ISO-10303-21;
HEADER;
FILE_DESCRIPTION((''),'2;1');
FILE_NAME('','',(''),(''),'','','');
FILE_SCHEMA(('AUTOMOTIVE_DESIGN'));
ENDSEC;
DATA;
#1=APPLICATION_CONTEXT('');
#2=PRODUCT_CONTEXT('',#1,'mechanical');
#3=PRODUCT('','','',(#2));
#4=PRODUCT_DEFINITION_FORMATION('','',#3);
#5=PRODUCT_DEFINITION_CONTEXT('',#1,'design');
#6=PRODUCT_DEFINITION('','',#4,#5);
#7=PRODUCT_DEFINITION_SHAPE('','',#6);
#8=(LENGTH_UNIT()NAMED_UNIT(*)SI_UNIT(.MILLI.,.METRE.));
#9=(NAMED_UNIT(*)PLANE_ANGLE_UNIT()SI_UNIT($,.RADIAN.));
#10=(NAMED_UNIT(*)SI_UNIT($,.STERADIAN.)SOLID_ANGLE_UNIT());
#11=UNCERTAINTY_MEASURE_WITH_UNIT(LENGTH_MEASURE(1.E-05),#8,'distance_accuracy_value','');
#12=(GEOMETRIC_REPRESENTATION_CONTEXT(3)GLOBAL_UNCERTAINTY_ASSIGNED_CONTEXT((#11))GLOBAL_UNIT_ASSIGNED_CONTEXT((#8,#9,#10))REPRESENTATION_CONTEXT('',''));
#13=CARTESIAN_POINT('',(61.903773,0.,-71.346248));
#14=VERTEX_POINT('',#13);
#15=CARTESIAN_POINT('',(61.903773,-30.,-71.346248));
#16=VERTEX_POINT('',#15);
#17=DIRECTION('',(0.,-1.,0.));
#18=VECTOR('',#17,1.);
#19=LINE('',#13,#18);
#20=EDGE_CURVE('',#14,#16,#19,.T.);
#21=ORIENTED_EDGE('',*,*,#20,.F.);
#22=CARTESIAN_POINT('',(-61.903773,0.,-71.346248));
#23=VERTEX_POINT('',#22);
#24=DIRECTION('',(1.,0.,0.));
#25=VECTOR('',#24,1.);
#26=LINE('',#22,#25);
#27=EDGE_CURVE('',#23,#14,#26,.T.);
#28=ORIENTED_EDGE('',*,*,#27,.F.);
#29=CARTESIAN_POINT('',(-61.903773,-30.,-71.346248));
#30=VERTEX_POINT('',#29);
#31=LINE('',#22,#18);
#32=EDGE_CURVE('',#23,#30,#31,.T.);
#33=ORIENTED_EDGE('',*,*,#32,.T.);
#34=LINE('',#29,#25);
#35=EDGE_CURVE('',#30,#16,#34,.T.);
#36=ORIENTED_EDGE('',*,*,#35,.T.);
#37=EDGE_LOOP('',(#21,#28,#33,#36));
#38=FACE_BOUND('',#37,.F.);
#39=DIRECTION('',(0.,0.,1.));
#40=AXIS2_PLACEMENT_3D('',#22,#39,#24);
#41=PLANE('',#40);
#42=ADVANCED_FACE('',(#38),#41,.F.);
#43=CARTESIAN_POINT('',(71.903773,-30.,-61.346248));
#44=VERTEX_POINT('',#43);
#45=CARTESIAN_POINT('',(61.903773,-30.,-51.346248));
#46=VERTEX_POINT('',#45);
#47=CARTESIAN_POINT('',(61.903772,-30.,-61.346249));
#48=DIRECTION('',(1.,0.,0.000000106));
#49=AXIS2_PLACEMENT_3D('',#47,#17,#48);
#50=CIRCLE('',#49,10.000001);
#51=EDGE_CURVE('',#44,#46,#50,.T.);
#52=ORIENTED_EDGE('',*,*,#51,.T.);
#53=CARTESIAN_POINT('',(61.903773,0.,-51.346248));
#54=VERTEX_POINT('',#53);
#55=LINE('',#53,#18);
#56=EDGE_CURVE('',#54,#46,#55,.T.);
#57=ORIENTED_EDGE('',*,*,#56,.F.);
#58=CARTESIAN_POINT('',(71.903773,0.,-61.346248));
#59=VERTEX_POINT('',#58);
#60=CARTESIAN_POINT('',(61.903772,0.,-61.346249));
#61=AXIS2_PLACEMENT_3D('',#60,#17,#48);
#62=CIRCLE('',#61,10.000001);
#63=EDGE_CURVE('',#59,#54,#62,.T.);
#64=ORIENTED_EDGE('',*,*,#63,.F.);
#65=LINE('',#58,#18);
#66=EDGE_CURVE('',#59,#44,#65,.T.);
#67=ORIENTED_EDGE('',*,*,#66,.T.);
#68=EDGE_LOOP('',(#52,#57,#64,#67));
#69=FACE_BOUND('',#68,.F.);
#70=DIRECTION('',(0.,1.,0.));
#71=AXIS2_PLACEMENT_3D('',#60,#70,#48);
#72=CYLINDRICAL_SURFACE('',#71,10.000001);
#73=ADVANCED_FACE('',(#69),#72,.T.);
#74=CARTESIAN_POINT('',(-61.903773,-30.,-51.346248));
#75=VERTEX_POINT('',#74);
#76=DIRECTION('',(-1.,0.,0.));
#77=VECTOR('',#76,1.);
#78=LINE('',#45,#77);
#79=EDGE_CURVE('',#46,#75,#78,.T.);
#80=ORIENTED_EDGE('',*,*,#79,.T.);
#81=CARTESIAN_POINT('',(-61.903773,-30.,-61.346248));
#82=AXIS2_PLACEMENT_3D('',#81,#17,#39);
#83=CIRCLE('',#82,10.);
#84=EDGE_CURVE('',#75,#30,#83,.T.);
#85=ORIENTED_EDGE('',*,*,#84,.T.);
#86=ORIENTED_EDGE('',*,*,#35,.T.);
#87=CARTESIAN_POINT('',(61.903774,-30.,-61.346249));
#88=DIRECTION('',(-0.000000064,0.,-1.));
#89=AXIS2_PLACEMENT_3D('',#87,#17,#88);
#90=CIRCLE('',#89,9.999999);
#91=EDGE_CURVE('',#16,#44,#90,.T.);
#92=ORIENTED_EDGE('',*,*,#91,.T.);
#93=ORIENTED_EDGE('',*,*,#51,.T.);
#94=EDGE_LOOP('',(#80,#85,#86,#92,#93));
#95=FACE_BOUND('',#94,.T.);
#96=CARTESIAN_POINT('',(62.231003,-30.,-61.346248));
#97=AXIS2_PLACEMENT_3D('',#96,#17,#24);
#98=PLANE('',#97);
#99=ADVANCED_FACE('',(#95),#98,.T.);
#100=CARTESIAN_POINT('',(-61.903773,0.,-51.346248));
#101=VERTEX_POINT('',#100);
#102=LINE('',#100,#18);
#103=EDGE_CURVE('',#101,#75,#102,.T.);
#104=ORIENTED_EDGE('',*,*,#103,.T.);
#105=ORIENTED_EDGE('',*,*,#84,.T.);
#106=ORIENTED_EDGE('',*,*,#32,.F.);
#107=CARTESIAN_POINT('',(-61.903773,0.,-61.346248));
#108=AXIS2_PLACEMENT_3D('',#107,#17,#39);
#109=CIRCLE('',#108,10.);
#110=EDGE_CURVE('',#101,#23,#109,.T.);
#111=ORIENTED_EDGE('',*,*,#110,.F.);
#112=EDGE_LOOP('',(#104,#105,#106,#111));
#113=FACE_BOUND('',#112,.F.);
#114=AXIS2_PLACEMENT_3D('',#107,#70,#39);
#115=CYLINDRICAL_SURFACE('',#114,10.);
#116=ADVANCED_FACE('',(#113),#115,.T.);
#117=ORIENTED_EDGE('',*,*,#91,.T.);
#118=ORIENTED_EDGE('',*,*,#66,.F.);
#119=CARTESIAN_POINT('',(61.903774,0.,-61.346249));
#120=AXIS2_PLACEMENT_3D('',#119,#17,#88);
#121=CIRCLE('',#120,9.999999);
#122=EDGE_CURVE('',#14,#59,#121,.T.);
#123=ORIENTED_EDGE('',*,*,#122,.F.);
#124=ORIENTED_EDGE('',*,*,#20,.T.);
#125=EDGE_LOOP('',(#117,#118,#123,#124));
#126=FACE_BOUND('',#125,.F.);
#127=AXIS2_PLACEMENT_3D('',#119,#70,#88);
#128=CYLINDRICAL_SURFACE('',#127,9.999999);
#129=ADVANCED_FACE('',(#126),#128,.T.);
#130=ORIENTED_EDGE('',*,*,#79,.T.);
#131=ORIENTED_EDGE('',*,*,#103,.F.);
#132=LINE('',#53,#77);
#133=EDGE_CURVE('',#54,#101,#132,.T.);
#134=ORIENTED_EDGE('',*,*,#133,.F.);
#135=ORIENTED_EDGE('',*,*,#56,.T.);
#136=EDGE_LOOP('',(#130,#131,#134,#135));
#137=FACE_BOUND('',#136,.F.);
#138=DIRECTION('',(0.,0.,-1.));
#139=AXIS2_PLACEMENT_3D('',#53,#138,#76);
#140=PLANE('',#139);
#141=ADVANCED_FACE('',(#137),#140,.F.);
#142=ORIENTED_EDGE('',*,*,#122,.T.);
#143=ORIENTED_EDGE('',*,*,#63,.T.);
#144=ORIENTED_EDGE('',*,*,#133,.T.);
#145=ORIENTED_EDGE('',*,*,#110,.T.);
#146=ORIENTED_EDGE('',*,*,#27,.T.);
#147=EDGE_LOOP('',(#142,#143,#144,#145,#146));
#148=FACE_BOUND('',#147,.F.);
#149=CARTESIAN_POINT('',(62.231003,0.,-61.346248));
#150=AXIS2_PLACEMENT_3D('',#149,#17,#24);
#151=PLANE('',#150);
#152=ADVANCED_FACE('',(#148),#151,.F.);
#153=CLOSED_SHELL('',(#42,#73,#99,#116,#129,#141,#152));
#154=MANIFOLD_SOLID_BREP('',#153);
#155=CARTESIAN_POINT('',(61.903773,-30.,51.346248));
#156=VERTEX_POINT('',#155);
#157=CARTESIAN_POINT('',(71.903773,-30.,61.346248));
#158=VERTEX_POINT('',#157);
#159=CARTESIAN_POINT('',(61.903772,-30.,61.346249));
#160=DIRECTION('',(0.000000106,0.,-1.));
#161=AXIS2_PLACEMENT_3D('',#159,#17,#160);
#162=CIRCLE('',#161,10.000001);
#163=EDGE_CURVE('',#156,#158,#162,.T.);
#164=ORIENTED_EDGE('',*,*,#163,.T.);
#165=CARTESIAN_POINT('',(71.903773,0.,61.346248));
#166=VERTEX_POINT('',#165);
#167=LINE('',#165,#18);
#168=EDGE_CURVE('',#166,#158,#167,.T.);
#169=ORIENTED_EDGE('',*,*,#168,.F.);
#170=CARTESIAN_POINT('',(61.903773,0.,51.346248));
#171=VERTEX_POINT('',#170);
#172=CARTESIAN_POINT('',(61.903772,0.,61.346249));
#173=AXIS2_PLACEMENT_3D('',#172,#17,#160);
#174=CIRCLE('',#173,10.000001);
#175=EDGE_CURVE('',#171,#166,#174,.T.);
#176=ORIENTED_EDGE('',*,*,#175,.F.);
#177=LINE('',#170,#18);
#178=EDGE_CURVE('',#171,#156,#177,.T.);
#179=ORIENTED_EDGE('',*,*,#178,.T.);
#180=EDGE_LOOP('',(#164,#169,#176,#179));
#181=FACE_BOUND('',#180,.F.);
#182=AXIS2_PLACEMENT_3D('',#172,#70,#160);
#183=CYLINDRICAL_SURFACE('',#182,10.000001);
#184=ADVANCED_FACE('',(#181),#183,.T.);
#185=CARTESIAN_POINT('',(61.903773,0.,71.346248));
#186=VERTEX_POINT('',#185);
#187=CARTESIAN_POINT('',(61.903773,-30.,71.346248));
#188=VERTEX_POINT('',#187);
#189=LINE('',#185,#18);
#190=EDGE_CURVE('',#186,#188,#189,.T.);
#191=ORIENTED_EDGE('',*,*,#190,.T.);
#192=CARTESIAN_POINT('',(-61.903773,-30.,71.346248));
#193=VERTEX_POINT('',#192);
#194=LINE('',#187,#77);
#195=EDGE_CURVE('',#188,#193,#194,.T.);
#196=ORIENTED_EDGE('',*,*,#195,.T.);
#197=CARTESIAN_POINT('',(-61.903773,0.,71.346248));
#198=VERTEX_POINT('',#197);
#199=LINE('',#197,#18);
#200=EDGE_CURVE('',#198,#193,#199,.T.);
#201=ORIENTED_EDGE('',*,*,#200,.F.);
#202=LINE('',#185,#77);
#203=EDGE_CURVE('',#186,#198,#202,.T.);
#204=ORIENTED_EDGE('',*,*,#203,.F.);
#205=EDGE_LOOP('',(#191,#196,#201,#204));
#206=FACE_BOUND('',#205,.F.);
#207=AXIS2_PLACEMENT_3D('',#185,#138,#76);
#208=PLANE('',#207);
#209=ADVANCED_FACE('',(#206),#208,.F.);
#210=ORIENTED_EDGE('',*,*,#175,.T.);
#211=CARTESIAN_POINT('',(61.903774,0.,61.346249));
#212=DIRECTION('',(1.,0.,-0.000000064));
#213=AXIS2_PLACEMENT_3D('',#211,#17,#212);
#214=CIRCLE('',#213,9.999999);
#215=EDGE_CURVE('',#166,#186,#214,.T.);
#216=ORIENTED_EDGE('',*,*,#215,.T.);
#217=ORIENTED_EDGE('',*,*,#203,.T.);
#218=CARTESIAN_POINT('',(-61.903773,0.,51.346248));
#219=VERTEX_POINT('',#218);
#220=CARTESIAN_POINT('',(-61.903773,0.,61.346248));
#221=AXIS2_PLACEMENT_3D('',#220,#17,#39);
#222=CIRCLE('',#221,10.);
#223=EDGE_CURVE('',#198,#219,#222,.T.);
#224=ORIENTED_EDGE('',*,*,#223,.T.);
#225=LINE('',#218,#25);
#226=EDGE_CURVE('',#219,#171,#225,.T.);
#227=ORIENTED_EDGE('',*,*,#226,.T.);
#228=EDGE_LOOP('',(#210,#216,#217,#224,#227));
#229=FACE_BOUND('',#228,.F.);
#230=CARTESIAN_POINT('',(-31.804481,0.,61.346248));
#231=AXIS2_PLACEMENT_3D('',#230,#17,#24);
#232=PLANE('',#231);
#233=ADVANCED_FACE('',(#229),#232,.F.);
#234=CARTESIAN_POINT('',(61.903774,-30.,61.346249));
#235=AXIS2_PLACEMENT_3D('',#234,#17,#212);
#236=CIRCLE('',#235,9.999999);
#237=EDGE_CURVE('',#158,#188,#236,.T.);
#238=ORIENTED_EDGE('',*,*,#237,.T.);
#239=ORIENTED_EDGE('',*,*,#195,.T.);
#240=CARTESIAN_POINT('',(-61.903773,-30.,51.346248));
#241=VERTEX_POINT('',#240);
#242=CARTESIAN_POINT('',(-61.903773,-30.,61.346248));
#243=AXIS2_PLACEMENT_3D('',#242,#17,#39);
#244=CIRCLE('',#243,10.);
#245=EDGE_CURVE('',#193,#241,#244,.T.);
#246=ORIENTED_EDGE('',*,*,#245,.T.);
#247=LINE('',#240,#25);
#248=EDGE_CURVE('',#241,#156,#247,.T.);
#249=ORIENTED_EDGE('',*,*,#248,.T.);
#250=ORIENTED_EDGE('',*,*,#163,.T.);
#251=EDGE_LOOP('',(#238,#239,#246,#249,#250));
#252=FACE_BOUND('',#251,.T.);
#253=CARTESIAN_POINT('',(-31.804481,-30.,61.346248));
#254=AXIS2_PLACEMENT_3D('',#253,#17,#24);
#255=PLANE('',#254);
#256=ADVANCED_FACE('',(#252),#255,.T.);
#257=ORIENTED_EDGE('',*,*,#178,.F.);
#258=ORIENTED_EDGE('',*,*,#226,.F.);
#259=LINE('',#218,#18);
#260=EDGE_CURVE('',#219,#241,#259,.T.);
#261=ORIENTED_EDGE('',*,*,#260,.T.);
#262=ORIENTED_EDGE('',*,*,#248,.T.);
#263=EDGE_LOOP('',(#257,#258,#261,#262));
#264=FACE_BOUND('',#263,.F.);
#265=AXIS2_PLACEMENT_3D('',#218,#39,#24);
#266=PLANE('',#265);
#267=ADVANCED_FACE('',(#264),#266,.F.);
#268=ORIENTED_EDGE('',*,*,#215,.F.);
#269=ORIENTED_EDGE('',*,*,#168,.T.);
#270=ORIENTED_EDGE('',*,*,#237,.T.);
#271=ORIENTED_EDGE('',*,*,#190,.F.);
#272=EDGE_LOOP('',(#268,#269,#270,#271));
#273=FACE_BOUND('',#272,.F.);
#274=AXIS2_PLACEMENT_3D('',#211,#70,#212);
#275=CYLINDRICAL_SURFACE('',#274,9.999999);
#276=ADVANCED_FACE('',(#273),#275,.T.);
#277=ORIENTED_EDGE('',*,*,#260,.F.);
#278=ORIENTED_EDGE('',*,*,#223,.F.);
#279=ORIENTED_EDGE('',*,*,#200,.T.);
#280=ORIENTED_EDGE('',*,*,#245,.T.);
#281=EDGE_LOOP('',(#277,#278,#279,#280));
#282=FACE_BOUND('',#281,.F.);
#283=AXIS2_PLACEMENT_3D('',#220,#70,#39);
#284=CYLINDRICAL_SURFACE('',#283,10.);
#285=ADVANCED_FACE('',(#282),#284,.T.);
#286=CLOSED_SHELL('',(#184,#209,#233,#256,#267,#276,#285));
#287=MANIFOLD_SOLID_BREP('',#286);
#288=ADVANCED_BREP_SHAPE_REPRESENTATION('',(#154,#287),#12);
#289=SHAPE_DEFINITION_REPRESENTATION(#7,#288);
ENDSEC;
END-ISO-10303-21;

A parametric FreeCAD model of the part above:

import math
import FreeCAD as App
import Part
import Sketcher
from FreeCAD import Vector
Q = App.Units.Quantity

doc = App.newDocument("Part")
body = doc.addObject("PartDesign::Body", "Body")
body.AllowCompound = True

sketch1 = body.newObject("Sketcher::SketchObject", "Sketch")
sketch1.AttachmentSupport = (doc.getObject("XZ_Plane"), [""])
sketch1.MapMode = "FlatFace"
sketch1.addGeometry(Part.LineSegment(Vector(-62, 51, 0), Vector(62, 51, 0)), False)
sketch1.addGeometry(Part.ArcOfCircle(Part.Circle(Vector(62, 61, 0), Vector(0, 0, 1), 10), math.radians(-90), math.radians(0)), False)
sketch1.addGeometry(Part.ArcOfCircle(Part.Circle(Vector(62, 61, 0), Vector(0, 0, 1), 10), math.radians(0), math.radians(90)), False)
sketch1.addGeometry(Part.LineSegment(Vector(62, 71, 0), Vector(-62, 71, 0)), False)
sketch1.addGeometry(Part.ArcOfCircle(Part.Circle(Vector(-62, 61, 0), Vector(0, 0, 1), 10), math.radians(90), math.radians(270)), False)
sketch1.addGeometry(Part.ArcOfCircle(Part.Circle(Vector(62, -61, 0), Vector(0, 0, 1), 10), math.radians(0), math.radians(90)), False)
sketch1.addGeometry(Part.LineSegment(Vector(62, -51, 0), Vector(-62, -51, 0)), False)
sketch1.addGeometry(Part.ArcOfCircle(Part.Circle(Vector(-62, -61, 0), Vector(0, 0, 1), 10), math.radians(90), math.radians(270)), False)
sketch1.addGeometry(Part.LineSegment(Vector(-62, -71, 0), Vector(62, -71, 0)), False)
sketch1.addGeometry(Part.ArcOfCircle(Part.Circle(Vector(62, -61, 0), Vector(0, 0, 1), 10), math.radians(-90), math.radians(0)), False)
sketch1.addConstraint(Sketcher.Constraint("Tangent", 0, 2, 1, 1))
sketch1.addConstraint(Sketcher.Constraint("Tangent", 1, 2, 2, 1))
sketch1.addConstraint(Sketcher.Constraint("Tangent", 2, 2, 3, 1))
sketch1.addConstraint(Sketcher.Constraint("Tangent", 3, 2, 4, 1))
sketch1.addConstraint(Sketcher.Constraint("Tangent", 4, 2, 0, 1))
sketch1.addConstraint(Sketcher.Constraint("Tangent", 5, 2, 6, 1))
sketch1.addConstraint(Sketcher.Constraint("Tangent", 6, 2, 7, 1))
sketch1.addConstraint(Sketcher.Constraint("Tangent", 7, 2, 8, 1))
sketch1.addConstraint(Sketcher.Constraint("Tangent", 8, 2, 9, 1))
sketch1.addConstraint(Sketcher.Constraint("Tangent", 9, 2, 5, 1))
sketch1.addConstraint(Sketcher.Constraint("Horizontal", 0))
sketch1.addConstraint(Sketcher.Constraint("Horizontal", 3))
sketch1.addConstraint(Sketcher.Constraint("Horizontal", 6))
sketch1.addConstraint(Sketcher.Constraint("Horizontal", 8))
sketch1.addConstraint(Sketcher.Constraint("Equal", 1, 2))
sketch1.addConstraint(Sketcher.Constraint("Equal", 4, 5))
sketch1.addConstraint(Sketcher.Constraint("Equal", 5, 7))
sketch1.addConstraint(Sketcher.Constraint("Symmetric", 4, 3, 5, 3, -1, 1))
sketch1.addConstraint(Sketcher.Constraint("Symmetric", 1, 2, 9, 2, -1))
sketch1.addConstraint(Sketcher.Constraint("Horizontal", 4, 3, 1, 2))
sketch1.addConstraint(Sketcher.Constraint("Vertical", 4, 3, 7, 3))
sketch1.addConstraint(Sketcher.Constraint("Radius", 1, Q("10.000001 mm")))
sketch1.addConstraint(Sketcher.Constraint("DistanceY", 5, 3, 1, 3, Q("122.692498 mm")))
sketch1.addConstraint(Sketcher.Constraint("DistanceX", 0, 1, 0, 2, Q("123.807546 mm")))
pad1 = body.newObject("PartDesign::Pad", "Pad")
pad1.Profile = sketch1
pad1.Length = 30

doc.recompute()
